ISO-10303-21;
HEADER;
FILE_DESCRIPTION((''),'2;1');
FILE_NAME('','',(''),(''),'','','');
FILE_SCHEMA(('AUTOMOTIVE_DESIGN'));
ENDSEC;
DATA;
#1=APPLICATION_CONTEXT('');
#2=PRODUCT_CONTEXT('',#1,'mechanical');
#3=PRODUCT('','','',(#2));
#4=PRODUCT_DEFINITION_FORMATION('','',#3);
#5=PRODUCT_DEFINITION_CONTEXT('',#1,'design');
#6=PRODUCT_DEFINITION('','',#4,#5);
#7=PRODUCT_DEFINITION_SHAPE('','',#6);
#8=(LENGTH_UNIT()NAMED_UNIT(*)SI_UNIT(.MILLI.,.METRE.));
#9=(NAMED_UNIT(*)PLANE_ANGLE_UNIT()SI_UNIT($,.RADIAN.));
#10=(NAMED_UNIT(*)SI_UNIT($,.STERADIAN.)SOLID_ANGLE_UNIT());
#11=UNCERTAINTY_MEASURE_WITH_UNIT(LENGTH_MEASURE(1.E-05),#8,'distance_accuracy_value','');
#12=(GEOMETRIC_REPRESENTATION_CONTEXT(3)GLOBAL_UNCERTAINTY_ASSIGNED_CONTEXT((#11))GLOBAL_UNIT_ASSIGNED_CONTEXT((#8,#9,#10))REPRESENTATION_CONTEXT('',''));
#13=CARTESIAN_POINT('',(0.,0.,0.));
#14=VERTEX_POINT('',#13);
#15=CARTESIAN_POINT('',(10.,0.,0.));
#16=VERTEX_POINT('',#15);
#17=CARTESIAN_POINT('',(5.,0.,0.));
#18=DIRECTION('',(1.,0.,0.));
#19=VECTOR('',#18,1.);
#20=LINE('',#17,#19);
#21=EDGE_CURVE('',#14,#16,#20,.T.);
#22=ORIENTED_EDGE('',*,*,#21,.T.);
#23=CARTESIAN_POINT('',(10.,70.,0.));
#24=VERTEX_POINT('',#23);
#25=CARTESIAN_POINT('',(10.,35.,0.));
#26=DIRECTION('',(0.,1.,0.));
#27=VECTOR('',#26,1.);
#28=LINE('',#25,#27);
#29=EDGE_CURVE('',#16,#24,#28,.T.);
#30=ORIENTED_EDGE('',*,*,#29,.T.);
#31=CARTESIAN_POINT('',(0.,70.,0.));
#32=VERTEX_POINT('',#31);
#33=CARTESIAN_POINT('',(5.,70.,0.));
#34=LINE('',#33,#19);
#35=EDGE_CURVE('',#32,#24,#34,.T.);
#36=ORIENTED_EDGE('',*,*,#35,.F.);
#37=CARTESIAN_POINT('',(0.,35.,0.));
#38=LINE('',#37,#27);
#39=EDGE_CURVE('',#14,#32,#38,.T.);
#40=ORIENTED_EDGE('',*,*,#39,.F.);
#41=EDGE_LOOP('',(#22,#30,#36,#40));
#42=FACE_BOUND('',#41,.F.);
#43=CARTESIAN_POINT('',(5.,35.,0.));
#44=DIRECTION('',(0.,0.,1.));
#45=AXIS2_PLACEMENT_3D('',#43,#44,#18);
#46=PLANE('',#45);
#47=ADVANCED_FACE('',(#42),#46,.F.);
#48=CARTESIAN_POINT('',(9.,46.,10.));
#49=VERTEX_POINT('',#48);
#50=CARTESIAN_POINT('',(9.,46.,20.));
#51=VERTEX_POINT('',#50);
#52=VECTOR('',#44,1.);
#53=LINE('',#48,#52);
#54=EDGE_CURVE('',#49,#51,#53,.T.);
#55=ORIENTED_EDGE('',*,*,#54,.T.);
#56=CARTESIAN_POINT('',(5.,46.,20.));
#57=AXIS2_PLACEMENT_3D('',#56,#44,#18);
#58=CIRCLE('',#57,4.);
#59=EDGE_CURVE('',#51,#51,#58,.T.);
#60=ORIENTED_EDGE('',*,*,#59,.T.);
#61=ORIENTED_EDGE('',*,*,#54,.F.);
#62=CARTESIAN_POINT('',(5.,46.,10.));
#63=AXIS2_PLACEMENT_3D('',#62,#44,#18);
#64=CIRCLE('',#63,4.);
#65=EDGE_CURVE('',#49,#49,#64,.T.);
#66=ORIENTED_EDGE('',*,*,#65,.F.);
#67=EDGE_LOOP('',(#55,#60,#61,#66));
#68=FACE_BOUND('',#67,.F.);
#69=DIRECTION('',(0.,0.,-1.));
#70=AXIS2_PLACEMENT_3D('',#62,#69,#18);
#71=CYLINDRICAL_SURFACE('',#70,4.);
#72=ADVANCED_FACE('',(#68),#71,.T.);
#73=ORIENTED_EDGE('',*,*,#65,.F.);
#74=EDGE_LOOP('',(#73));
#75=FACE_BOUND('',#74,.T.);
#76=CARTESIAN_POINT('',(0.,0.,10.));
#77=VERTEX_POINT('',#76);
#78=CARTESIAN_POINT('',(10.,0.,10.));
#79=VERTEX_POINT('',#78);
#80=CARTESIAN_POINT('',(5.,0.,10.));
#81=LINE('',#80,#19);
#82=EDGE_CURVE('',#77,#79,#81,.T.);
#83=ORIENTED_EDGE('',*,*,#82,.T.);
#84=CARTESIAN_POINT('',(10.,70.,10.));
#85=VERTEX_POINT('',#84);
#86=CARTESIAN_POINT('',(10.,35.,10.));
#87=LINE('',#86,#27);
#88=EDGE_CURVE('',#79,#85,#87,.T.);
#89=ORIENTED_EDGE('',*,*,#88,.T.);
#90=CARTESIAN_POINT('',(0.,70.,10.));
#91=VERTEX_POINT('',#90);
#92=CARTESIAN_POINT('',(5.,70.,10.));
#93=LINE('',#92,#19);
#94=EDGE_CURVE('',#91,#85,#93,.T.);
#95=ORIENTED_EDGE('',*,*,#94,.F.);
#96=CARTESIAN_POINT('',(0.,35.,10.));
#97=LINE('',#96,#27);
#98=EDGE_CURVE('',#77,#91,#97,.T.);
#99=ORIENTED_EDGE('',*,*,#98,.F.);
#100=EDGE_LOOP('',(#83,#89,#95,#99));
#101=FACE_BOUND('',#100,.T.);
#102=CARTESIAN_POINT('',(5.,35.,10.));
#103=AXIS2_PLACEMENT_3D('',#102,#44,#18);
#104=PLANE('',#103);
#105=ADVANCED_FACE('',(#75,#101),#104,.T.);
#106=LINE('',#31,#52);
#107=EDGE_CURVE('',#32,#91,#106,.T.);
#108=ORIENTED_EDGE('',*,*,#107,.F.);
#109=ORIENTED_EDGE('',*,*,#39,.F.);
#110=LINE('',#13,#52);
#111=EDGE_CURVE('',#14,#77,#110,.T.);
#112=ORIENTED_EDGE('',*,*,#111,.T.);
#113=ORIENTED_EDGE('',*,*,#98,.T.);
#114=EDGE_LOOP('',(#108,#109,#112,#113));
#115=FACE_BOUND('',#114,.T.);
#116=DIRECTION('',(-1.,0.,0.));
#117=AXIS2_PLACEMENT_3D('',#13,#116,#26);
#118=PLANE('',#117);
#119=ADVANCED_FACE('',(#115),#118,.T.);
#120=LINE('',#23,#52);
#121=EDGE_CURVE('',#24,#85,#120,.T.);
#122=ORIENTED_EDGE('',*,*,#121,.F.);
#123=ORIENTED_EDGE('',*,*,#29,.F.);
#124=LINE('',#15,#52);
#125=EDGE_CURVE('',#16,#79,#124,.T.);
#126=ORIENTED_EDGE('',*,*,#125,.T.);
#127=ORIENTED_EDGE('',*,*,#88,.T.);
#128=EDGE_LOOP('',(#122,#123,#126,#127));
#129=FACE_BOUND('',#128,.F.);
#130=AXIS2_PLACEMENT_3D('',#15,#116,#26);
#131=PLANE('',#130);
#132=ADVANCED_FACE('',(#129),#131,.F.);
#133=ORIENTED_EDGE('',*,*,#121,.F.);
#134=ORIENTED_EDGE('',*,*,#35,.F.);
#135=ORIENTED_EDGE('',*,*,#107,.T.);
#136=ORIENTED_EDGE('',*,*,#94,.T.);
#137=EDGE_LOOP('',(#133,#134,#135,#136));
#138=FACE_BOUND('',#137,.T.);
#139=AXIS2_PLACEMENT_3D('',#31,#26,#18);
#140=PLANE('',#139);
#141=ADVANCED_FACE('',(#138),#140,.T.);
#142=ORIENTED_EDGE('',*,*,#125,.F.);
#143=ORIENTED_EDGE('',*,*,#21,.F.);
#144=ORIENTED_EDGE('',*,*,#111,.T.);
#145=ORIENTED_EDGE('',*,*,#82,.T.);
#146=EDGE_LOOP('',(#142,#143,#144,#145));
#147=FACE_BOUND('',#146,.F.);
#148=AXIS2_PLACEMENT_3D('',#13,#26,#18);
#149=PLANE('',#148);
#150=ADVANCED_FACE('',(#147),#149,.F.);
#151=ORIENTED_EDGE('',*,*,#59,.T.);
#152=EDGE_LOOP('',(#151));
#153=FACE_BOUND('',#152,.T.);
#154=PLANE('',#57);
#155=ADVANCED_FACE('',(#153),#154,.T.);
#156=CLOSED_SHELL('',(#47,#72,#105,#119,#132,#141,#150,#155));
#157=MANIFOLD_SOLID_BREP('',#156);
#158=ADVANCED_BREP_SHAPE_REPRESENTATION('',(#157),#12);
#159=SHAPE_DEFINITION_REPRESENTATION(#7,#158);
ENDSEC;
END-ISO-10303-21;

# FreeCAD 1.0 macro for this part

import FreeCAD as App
import Part
import Sketcher
from FreeCAD import Vector
Q = App.Units.Quantity

doc = App.newDocument("Part")
body = doc.addObject("PartDesign::Body", "Body")

sketch1 = doc.addObject("Sketcher::SketchObject", "Sketch")
body.addObject(sketch1)
sketch1.AttachmentSupport = (doc.XY_Plane, [""])
sketch1.MapMode = "FlatFace"
sketch1.addGeometry([
    Part.LineSegment(Vector(0, 70, 0), Vector(0, 0, 0)),
    Part.LineSegment(Vector(0, 0, 0), Vector(10, 0, 0)),
    Part.LineSegment(Vector(10, 0, 0), Vector(10, 70, 0)),
    Part.LineSegment(Vector(10, 70, 0), Vector(0, 70, 0)),
], False)
sketch1.addConstraint([
    Sketcher.Constraint("Coincident", 0, 2, 1, 1),
    Sketcher.Constraint("Coincident", 1, 2, 2, 1),
    Sketcher.Constraint("Coincident", 2, 2, 3, 1),
    Sketcher.Constraint("Coincident", 3, 2, 0, 1),
    Sketcher.Constraint("Vertical", 0),
    Sketcher.Constraint("Horizontal", 1),
    Sketcher.Constraint("Vertical", 2),
    Sketcher.Constraint("Horizontal", 3),
    Sketcher.Constraint("Coincident", 0, 2, -1, 1),
    Sketcher.Constraint("DistanceX", 1, 1, 1, 2, Q("10 mm")),
    Sketcher.Constraint("DistanceY", 0, 2, 0, 1, Q("70 mm")),
])
pad1 = doc.addObject("PartDesign::Pad", "Pad")
body.addObject(pad1)
pad1.Profile = sketch1
pad1.Length = 10

sketch2 = doc.addObject("Sketcher::SketchObject", "Sketch001")
body.addObject(sketch2)
sketch2.AttachmentSupport = (doc.XY_Plane, [""])
sketch2.MapMode = "FlatFace"
sketch2.AttachmentOffset = App.Placement(Vector(0, 0, 10), App.Rotation())
sketch2.addGeometry(Part.Circle(Vector(5, 46, 0), Vector(0, 0, 1), 4), False)
sketch2.addConstraint([
    Sketcher.Constraint("Diameter", 0, Q("8 mm")),
    Sketcher.Constraint("DistanceX", -1, 1, 0, 3, Q("5 mm")),
    Sketcher.Constraint("DistanceY", -1, 1, 0, 3, Q("46 mm")),
])
pad2 = doc.addObject("PartDesign::Pad", "Pad001")
body.addObject(pad2)
pad2.Profile = sketch2
pad2.Length = 10

doc.recompute()
